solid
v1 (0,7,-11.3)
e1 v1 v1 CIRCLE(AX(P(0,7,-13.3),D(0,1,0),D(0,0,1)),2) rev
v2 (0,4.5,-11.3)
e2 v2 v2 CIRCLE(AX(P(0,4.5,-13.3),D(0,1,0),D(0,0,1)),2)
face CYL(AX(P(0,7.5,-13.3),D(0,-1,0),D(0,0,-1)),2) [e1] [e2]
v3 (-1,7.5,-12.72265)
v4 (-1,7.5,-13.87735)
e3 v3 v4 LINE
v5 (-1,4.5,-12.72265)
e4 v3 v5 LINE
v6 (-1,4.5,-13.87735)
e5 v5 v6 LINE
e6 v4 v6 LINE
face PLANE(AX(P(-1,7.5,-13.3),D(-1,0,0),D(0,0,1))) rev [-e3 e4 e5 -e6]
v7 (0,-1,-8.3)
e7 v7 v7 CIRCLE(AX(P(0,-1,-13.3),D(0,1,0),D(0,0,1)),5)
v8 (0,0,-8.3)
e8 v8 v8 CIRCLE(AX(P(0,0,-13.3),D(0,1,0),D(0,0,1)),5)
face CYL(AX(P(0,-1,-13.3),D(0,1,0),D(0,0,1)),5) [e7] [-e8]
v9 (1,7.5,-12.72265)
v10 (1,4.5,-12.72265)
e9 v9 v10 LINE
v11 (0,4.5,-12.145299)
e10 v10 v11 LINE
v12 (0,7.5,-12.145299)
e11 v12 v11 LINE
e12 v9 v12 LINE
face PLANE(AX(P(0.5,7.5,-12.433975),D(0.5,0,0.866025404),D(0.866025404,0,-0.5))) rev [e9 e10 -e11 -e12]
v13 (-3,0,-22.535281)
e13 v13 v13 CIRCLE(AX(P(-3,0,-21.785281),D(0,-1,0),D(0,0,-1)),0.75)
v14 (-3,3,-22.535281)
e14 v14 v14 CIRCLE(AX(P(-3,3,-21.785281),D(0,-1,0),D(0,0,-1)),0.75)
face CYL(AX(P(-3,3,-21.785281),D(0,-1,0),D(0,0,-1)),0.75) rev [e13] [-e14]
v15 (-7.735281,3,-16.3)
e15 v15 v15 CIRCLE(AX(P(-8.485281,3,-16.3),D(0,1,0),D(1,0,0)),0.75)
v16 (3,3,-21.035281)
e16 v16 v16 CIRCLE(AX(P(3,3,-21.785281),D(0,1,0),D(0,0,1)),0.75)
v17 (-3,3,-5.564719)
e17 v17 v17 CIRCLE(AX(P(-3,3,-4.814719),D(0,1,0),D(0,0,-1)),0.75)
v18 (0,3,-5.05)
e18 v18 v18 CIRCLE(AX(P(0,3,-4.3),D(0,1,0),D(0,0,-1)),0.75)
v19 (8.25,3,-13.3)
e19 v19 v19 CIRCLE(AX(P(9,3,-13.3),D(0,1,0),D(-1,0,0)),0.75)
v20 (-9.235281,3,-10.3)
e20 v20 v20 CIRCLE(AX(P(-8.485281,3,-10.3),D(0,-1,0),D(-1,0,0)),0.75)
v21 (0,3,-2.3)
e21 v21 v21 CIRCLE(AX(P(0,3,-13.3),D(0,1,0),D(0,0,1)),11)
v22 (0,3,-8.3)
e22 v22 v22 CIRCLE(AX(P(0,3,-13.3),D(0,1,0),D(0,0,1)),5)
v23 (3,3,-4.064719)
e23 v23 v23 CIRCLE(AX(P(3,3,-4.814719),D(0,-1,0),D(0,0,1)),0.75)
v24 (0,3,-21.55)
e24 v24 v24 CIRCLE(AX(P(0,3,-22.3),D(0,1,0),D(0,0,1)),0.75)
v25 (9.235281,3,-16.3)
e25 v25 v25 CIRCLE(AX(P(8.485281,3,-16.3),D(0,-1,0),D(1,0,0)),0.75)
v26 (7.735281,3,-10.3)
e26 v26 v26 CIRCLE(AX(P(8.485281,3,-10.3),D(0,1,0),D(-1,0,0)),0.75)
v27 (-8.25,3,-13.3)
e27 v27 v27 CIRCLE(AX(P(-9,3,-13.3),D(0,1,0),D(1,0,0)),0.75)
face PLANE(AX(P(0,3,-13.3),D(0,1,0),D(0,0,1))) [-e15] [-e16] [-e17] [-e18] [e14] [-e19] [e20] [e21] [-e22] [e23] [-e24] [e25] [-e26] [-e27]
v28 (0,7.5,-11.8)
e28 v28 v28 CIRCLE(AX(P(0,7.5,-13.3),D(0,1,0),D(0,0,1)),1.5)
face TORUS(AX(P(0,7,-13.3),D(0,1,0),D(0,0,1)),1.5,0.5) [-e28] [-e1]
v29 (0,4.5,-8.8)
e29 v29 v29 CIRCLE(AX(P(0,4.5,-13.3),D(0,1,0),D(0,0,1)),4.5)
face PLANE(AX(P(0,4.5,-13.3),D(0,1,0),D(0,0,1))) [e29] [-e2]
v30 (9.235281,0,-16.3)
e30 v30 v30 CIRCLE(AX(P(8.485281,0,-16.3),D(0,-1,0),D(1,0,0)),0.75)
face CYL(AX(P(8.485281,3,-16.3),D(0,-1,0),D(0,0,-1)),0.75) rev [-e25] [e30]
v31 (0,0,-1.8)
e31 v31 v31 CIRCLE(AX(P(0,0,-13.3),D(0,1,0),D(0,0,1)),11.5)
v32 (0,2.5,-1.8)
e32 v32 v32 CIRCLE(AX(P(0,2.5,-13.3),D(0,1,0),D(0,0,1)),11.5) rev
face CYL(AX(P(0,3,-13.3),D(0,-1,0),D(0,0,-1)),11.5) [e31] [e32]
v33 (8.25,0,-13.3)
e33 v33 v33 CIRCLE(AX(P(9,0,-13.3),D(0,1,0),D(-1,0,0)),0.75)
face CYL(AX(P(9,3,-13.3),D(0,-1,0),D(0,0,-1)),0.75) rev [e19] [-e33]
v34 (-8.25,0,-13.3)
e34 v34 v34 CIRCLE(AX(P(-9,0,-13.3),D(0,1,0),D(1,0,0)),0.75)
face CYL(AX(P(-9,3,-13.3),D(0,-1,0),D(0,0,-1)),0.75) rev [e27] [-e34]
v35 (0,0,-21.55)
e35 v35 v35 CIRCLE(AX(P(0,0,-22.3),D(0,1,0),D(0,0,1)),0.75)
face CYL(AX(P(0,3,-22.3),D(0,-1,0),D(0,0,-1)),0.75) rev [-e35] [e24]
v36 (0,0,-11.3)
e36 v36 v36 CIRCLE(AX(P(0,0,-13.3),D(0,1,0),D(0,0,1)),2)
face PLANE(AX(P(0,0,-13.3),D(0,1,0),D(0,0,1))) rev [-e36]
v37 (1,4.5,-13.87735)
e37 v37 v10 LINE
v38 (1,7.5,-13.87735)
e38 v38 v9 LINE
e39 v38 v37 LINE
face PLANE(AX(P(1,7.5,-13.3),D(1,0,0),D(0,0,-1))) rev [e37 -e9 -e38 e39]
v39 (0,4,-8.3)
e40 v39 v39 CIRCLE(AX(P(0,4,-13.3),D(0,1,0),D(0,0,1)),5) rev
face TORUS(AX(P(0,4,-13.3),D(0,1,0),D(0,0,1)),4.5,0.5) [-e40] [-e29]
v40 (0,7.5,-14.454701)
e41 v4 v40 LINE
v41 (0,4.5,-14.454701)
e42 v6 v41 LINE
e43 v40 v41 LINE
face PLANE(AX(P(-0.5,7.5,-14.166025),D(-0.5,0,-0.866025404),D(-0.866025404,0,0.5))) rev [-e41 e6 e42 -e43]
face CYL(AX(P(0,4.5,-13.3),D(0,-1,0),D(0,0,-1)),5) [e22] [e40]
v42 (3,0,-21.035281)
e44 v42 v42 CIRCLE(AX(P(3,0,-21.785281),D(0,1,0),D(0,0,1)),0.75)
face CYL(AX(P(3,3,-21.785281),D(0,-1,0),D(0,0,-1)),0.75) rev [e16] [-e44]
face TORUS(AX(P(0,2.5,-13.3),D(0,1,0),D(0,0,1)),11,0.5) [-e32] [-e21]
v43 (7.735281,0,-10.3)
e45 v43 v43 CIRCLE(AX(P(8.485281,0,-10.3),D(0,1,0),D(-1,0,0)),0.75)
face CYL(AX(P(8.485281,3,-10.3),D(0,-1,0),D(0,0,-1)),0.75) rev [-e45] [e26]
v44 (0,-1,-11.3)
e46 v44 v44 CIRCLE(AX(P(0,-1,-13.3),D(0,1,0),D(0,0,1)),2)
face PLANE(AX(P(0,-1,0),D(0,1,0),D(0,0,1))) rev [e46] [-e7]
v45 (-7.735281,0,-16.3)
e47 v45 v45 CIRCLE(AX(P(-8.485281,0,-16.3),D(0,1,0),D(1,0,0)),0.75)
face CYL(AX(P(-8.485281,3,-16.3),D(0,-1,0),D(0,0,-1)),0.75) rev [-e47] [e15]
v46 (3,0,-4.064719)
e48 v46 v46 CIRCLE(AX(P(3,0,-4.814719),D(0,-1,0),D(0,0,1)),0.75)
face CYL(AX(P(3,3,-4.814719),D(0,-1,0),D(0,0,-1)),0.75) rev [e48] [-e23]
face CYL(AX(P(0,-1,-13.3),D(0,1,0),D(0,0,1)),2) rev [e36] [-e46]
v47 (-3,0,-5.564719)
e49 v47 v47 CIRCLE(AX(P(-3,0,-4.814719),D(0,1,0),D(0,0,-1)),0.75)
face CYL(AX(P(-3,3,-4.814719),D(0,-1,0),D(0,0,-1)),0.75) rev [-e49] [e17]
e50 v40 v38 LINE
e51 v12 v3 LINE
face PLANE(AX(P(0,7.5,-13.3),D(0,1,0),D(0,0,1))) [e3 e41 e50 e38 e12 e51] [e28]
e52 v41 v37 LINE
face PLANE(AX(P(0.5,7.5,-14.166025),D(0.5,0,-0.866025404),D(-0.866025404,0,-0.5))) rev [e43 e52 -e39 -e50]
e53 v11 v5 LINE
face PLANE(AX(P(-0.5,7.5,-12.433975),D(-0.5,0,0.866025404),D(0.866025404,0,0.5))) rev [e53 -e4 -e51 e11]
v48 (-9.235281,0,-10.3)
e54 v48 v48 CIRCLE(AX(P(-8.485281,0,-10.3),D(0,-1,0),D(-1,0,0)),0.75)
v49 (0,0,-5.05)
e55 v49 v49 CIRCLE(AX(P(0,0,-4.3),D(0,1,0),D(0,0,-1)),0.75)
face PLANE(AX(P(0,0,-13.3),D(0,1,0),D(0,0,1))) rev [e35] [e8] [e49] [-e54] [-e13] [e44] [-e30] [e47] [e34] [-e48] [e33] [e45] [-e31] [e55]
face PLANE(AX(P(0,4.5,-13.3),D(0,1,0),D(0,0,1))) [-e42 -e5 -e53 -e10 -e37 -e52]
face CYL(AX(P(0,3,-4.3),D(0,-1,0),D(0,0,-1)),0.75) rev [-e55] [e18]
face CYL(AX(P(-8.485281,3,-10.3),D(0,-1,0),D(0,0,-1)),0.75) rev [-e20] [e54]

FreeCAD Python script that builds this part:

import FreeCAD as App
import Part
import Sketcher
from FreeCAD import Vector
Q = App.Units.Quantity


def edges_at(feature, points):
    """Names of the edges that pass closest to the given points."""
    edges = feature.Shape.Edges
    near = lambda p: min(range(len(edges)), key=lambda i: edges[i].distToShape(Part.Vertex(*p))[0])
    return sorted({f"Edge{near(p) + 1}" for p in points})


def add_polygon(sketch, points):
    """Adds a closed chain of lines whose ends are joined by coincident constraints."""
    first, n = sketch.GeometryCount, len(points)
    for a, b in zip(points, points[1:] + points[:1]):
        sketch.addGeometry(Part.LineSegment(App.Vector(*a, 0), App.Vector(*b, 0)), False)
    for i in range(n):
        sketch.addConstraint(Sketcher.Constraint("Coincident", first + i, 2, first + (i + 1) % n, 1))

doc = App.newDocument("Part")
body = doc.addObject("PartDesign::Body", "Body")

# Sketch on XZ plane
sketch1 = doc.addObject("Sketcher::SketchObject", "Sketch")
body.addObject(sketch1)
sketch1.AttachmentSupport = (doc.XZ_Plane, [""])
sketch1.MapMode = "FlatFace"
sketch1.addGeometry(Part.Circle(Vector(0, -13.3, 0), Vector(0, 0, 1), 11.5), False)
sketch1.addConstraint(Sketcher.Constraint("PointOnObject", 0, 3, -2))
sketch1.addConstraint(Sketcher.Constraint("Diameter", 0, 23.0))
sketch1.addConstraint(Sketcher.Constraint("DistanceY", 0, 3, -1, 1, 13.3))
pad1 = doc.addObject("PartDesign::Pad", "Pad")
body.addObject(pad1)
pad1.Profile = sketch1
pad1.Length = 3
pad1.Reversed = True

# Sketch on XZ plane
sketch2 = doc.addObject("Sketcher::SketchObject", "Sketch001")
body.addObject(sketch2)
sketch2.AttachmentSupport = (doc.XZ_Plane, [""])
sketch2.MapMode = "FlatFace"
sketch2.addGeometry(Part.Circle(Vector(0, -22.3, 0), Vector(0, 0, 1), 0.75), False)
sketch2.addGeometry(Part.Circle(Vector(3, -21.785281, 0), Vector(0, 0, 1), 0.75), False)
sketch2.addGeometry(Part.Circle(Vector(-3, -21.785281, 0), Vector(0, 0, 1), 0.75), False)
sketch2.addConstraint(Sketcher.Constraint("Equal", 0, 1))
sketch2.addConstraint(Sketcher.Constraint("Equal", 1, 2))
sketch2.addConstraint(Sketcher.Constraint("Symmetric", 1, 3, 2, 3, -2))
sketch2.addConstraint(Sketcher.Constraint("PointOnObject", 0, 3, -2))
sketch2.addConstraint(Sketcher.Constraint("Diameter", 0, 1.5))
sketch2.addConstraint(Sketcher.Constraint("DistanceX", -1, 1, 1, 3, 3.0))
sketch2.addConstraint(Sketcher.Constraint("DistanceY", 0, 3, -1, 1, 22.3))
sketch2.addConstraint(Sketcher.Constraint("DistanceY", 1, 3, -1, 1, 21.785281))
pocket1 = doc.addObject("PartDesign::Pocket", "Pocket")
body.addObject(pocket1)
pocket1.Profile = sketch2
pocket1.Length = 3
doc.recompute()

datumline = doc.addObject("PartDesign::Line", "DatumLine")
body.addObject(datumline)
datumline.Placement = App.Placement(Vector(0, 0, -13.3), App.Rotation(Vector(0, 0, 1), Vector(0, 1, 0)))
polarpattern = doc.addObject("PartDesign::PolarPattern", "PolarPattern")
body.addObject(polarpattern)
polarpattern.Originals = [pocket1]
polarpattern.Axis = (datumline, [""])
polarpattern.Angle = 360
polarpattern.Occurrences = 4
body.Tip = polarpattern

# Sketch on XZ plane
sketch3 = doc.addObject("Sketcher::SketchObject", "Sketch002")
body.addObject(sketch3)
sketch3.AttachmentSupport = (doc.XZ_Plane, [""])
sketch3.MapMode = "FlatFace"
sketch3.AttachmentOffset = App.Placement(Vector(0, 0, -3), App.Rotation())
sketch3.addGeometry(Part.Circle(Vector(0, -13.3, 0), Vector(0, 0, 1), 5), False)
sketch3.addConstraint(Sketcher.Constraint("PointOnObject", 0, 3, -2))
sketch3.addConstraint(Sketcher.Constraint("Diameter", 0, 10.0))
sketch3.addConstraint(Sketcher.Constraint("DistanceY", 0, 3, -1, 1, 13.3))
pad2 = doc.addObject("PartDesign::Pad", "Pad001")
body.addObject(pad2)
pad2.Profile = sketch3
pad2.Length = 1.5
pad2.Reversed = True

# Sketch on XZ plane
sketch4 = doc.addObject("Sketcher::SketchObject", "Sketch003")
body.addObject(sketch4)
sketch4.AttachmentSupport = (doc.XZ_Plane, [""])
sketch4.MapMode = "FlatFace"
sketch4.AttachmentOffset = App.Placement(Vector(0, 0, -4.5), App.Rotation())
sketch4.addGeometry(Part.Circle(Vector(0, -13.3, 0), Vector(0, 0, 1), 2), False)  # 0
add_polygon(sketch4, [(1, -13.87735), (1, -12.72265), (0, -12.145299), (-1, -12.72265), (-1, -13.87735), (0, -14.454701)])  # lines 1-6
sketch4.addConstraint(Sketcher.Constraint("Vertical", 1))
sketch4.addConstraint(Sketcher.Constraint("Vertical", 4))
sketch4.addConstraint(Sketcher.Constraint("Symmetric", 1, 2, 3, 2, -2))
sketch4.addConstraint(Sketcher.Constraint("PointOnObject", 0, 3, -2))
sketch4.addConstraint(Sketcher.Constraint("PointOnObject", 2, 2, -2))
sketch4.addConstraint(Sketcher.Constraint("PointOnObject", 5, 2, -2))
sketch4.addConstraint(Sketcher.Constraint("Parallel", 2, 5))
sketch4.addConstraint(Sketcher.Constraint("Parallel", 3, 6))
sketch4.addConstraint(Sketcher.Constraint("Diameter", 0, 4.0))
sketch4.addConstraint(Sketcher.Constraint("Angle", 2, Q("150 deg")))
sketch4.addConstraint(Sketcher.Constraint("DistanceX", -1, 1, 1, 2, 1.0))
sketch4.addConstraint(Sketcher.Constraint("DistanceY", 0, 3, -1, 1, 13.3))
sketch4.addConstraint(Sketcher.Constraint("DistanceY", 1, 1, 1, 2, 1.154701))
sketch4.addConstraint(Sketcher.Constraint("DistanceY", 2, 2, -1, 1, 12.145299))
pad3 = doc.addObject("PartDesign::Pad", "Pad002")
body.addObject(pad3)
pad3.Profile = sketch4
pad3.Length = 3
pad3.Reversed = True
doc.recompute()

fillet = doc.addObject("PartDesign::Fillet", "Fillet")
body.addObject(fillet)
fillet.Base = (pad3, edges_at(pad3, [(0, 3, -24.8), (0, 4.5, -18.3), (0, 7.5, -15.3)]))
fillet.Radius = 0.5

# Sketch on XZ plane
sketch5 = doc.addObject("Sketcher::SketchObject", "Sketch004")
body.addObject(sketch5)
sketch5.AttachmentSupport = (doc.XZ_Plane, [""])
sketch5.MapMode = "FlatFace"
sketch5.AttachmentOffset = App.Placement(Vector(0, 0, 1), App.Rotation())
sketch5.addGeometry(Part.Circle(Vector(0, -13.3, 0), Vector(0, 0, 1), 5), False)
sketch5.addGeometry(Part.Circle(Vector(0, -13.3, 0), Vector(0, 0, 1), 2), False)
sketch5.addConstraint(Sketcher.Constraint("Coincident", 1, 3, 0, 3))
sketch5.addConstraint(Sketcher.Constraint("PointOnObject", 0, 3, -2))
sketch5.addConstraint(Sketcher.Constraint("Diameter", 0, 10.0))
sketch5.addConstraint(Sketcher.Constraint("Diameter", 1, 4.0))
sketch5.addConstraint(Sketcher.Constraint("DistanceY", 0, 3, -1, 1, 13.3))
pad4 = doc.addObject("PartDesign::Pad", "Pad003")
body.addObject(pad4)
pad4.Profile = sketch5
pad4.Length = 1
pad4.Reversed = True

doc.recompute()
